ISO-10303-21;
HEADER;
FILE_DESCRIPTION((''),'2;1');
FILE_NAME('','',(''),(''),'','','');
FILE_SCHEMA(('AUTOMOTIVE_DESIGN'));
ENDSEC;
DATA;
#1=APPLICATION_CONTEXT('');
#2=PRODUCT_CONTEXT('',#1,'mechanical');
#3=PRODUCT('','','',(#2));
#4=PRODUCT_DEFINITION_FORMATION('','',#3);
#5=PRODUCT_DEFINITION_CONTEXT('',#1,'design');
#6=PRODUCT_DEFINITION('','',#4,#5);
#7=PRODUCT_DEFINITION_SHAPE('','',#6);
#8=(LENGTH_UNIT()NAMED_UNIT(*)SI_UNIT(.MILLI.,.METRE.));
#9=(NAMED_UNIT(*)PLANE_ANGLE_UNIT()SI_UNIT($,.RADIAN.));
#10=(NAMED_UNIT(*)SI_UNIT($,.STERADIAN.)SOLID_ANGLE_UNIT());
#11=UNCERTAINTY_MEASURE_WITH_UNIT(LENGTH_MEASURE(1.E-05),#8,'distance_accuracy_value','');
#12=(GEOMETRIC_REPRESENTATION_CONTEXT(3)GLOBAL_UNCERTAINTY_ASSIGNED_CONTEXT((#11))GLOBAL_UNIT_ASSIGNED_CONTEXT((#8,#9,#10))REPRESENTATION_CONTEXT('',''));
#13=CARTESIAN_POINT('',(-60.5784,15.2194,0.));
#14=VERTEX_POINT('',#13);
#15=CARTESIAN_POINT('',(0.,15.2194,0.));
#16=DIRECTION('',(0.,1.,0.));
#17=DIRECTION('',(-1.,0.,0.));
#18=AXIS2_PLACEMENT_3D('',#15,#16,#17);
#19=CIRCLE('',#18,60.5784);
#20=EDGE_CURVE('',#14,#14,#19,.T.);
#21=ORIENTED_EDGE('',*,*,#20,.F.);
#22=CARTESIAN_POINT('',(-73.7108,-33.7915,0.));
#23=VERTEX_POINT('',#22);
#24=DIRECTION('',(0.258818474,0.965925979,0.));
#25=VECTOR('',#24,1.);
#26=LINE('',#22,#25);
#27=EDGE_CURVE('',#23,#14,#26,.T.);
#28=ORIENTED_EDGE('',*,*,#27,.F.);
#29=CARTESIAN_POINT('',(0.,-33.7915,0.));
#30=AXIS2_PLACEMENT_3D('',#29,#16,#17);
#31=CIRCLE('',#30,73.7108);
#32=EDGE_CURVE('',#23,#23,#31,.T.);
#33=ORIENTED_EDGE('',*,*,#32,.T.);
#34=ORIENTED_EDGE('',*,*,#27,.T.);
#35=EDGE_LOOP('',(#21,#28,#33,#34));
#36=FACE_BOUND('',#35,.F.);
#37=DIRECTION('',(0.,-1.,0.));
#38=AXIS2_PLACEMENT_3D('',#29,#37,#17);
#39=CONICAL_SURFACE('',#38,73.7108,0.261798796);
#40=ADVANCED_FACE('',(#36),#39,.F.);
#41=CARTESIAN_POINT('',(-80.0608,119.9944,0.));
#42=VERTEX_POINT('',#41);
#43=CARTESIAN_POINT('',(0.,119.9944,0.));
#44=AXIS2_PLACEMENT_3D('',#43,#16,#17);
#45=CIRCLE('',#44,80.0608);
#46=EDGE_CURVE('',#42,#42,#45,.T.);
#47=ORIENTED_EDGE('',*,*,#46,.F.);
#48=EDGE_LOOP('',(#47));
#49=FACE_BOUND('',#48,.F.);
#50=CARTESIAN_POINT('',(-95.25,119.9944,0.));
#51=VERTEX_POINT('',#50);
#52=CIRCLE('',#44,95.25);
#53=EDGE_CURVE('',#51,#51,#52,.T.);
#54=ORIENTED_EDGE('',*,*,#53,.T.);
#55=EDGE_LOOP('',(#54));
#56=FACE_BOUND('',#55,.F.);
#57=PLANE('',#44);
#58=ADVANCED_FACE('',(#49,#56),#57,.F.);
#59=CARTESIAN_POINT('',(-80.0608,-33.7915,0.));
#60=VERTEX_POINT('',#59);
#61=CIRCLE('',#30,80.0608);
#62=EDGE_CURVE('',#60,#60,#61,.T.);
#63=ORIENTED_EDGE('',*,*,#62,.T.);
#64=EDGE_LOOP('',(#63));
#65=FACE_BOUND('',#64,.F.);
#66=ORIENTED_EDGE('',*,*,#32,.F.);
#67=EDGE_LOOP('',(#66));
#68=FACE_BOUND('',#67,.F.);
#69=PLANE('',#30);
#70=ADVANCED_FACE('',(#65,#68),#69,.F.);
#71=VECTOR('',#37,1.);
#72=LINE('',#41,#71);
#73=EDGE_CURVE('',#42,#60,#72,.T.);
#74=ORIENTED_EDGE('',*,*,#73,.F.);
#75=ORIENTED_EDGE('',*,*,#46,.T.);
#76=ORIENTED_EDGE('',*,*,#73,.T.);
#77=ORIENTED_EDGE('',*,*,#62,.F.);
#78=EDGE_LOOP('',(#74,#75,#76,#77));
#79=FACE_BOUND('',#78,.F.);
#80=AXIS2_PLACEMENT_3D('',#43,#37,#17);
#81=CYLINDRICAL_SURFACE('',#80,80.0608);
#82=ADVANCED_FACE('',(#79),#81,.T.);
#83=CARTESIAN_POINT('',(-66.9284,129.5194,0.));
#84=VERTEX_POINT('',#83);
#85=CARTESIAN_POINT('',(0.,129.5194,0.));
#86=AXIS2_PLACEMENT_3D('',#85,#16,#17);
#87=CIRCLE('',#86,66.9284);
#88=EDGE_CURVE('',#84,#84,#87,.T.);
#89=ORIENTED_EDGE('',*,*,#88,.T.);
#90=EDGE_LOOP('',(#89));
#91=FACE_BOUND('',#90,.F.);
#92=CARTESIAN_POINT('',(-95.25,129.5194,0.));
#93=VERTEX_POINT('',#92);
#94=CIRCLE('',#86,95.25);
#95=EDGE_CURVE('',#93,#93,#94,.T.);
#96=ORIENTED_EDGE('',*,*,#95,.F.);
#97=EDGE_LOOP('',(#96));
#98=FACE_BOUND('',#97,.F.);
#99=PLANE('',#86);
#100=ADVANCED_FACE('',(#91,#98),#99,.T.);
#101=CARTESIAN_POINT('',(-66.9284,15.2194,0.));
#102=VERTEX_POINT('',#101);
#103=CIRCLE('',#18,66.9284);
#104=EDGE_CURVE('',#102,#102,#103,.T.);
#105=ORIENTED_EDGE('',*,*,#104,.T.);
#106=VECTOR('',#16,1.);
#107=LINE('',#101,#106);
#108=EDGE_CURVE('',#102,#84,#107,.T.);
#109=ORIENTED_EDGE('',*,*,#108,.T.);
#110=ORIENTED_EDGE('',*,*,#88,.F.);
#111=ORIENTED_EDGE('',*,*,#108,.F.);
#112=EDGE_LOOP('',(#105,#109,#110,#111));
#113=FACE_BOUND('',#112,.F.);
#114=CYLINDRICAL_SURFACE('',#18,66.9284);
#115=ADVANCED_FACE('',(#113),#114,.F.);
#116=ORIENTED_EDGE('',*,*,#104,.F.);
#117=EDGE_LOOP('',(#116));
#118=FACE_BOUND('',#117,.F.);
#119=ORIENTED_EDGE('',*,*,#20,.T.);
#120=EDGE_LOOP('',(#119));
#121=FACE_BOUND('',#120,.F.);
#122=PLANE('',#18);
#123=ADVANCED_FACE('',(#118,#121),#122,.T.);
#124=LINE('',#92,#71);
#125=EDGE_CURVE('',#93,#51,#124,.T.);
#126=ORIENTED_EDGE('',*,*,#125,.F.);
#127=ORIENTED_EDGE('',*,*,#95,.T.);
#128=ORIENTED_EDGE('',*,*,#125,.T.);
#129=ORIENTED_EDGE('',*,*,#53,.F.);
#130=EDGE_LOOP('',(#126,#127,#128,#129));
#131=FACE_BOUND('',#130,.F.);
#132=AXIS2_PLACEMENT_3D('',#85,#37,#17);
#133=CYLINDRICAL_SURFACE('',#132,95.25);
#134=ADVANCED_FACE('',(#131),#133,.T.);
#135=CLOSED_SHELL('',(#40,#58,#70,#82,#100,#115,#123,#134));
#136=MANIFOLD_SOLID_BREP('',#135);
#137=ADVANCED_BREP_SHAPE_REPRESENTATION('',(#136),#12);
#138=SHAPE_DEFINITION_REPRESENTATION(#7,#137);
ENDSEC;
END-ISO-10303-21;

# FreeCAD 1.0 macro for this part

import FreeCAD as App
import Part
import Sketcher

V = App.Vector
Q = App.Units.Quantity


def add_polygon(sketch, points):
    """Adds a closed chain of lines whose ends are joined by coincident constraints."""
    first, n = sketch.GeometryCount, len(points)
    for a, b in zip(points, points[1:] + points[:1]):
        sketch.addGeometry(Part.LineSegment(App.Vector(*a, 0), App.Vector(*b, 0)), False)
    for i in range(n):
        sketch.addConstraint(Sketcher.Constraint("Coincident", first + i, 2, first + (i + 1) % n, 1))

doc = App.newDocument("Part")
params = doc.addObject("Spreadsheet::Sheet", "Params")
for row, (alias, value) in enumerate([
    ("sketch1_height", "4.5 in"),
    ("sketch1_width", "0.25 in"),
    ("sketch1_width2", "0.598 in"),
    ("sketch1_height2", "0.375 in"),
    ("revolution_angle", "360 deg"),
], start=1):
    params.set(f"A{row}", alias)
    params.set(f"B{row}", "=" + value)
    params.setAlias(f"B{row}", alias)

body = doc.addObject("PartDesign::Body", "Body")

sketch1 = body.newObject("Sketcher::SketchObject", "Sketch")
sketch1.AttachmentSupport = (doc.getObject("XY_Plane"), [""])
sketch1.MapMode = "FlatFace"
add_polygon(sketch1, [(-80, 120), (-80, -34), (-74, -34), (-61, 15), (-67, 15), (-67, 130), (-95, 130), (-95, 120)])
sketch1.addConstraint([
    Sketcher.Constraint("Vertical", 0),
    Sketcher.Constraint("Horizontal", 1),
    Sketcher.Constraint("Horizontal", 3),
    Sketcher.Constraint("Vertical", 4),
    Sketcher.Constraint("Horizontal", 5),
    Sketcher.Constraint("Vertical", 6),
    Sketcher.Constraint("Horizontal", 7),
    Sketcher.Constraint("Equal", 1, 3),
    Sketcher.Constraint("DistanceY", 4, 1, 4, 2, Q("4.5 in")),
    Sketcher.Constraint("DistanceX", 1, 1, 1, 2, Q("0.25 in")),
    Sketcher.Constraint("DistanceX", 7, 1, 7, 2, Q("0.598 in")),
    Sketcher.Constraint("DistanceY", 6, 2, 6, 1, Q("0.375 in")),
    Sketcher.Constraint("DistanceX", 1, 2, -1, 1, Q("2.902 in")),
    Sketcher.Constraint("Angle", 2, Q("75 deg")),
    Sketcher.Constraint("DistanceX", 2, 2, -1, 1, 60.5784),
    Sketcher.Constraint("DistanceY", -1, 1, 2, 2, Q("0.5992 in")),
])
sketch1.setExpression("Constraints[16]", "Params.sketch1_height")
sketch1.setExpression("Constraints[17]", "Params.sketch1_width")
sketch1.setExpression("Constraints[18]", "Params.sketch1_width2")
sketch1.setExpression("Constraints[19]", "Params.sketch1_height2")
revolution = body.newObject("PartDesign::Revolution", "Revolution")
revolution.Profile = sketch1
revolution.ReferenceAxis = (sketch1, ["V_Axis"])
revolution.setExpression("Angle", "Params.revolution_angle")

doc.recompute()
